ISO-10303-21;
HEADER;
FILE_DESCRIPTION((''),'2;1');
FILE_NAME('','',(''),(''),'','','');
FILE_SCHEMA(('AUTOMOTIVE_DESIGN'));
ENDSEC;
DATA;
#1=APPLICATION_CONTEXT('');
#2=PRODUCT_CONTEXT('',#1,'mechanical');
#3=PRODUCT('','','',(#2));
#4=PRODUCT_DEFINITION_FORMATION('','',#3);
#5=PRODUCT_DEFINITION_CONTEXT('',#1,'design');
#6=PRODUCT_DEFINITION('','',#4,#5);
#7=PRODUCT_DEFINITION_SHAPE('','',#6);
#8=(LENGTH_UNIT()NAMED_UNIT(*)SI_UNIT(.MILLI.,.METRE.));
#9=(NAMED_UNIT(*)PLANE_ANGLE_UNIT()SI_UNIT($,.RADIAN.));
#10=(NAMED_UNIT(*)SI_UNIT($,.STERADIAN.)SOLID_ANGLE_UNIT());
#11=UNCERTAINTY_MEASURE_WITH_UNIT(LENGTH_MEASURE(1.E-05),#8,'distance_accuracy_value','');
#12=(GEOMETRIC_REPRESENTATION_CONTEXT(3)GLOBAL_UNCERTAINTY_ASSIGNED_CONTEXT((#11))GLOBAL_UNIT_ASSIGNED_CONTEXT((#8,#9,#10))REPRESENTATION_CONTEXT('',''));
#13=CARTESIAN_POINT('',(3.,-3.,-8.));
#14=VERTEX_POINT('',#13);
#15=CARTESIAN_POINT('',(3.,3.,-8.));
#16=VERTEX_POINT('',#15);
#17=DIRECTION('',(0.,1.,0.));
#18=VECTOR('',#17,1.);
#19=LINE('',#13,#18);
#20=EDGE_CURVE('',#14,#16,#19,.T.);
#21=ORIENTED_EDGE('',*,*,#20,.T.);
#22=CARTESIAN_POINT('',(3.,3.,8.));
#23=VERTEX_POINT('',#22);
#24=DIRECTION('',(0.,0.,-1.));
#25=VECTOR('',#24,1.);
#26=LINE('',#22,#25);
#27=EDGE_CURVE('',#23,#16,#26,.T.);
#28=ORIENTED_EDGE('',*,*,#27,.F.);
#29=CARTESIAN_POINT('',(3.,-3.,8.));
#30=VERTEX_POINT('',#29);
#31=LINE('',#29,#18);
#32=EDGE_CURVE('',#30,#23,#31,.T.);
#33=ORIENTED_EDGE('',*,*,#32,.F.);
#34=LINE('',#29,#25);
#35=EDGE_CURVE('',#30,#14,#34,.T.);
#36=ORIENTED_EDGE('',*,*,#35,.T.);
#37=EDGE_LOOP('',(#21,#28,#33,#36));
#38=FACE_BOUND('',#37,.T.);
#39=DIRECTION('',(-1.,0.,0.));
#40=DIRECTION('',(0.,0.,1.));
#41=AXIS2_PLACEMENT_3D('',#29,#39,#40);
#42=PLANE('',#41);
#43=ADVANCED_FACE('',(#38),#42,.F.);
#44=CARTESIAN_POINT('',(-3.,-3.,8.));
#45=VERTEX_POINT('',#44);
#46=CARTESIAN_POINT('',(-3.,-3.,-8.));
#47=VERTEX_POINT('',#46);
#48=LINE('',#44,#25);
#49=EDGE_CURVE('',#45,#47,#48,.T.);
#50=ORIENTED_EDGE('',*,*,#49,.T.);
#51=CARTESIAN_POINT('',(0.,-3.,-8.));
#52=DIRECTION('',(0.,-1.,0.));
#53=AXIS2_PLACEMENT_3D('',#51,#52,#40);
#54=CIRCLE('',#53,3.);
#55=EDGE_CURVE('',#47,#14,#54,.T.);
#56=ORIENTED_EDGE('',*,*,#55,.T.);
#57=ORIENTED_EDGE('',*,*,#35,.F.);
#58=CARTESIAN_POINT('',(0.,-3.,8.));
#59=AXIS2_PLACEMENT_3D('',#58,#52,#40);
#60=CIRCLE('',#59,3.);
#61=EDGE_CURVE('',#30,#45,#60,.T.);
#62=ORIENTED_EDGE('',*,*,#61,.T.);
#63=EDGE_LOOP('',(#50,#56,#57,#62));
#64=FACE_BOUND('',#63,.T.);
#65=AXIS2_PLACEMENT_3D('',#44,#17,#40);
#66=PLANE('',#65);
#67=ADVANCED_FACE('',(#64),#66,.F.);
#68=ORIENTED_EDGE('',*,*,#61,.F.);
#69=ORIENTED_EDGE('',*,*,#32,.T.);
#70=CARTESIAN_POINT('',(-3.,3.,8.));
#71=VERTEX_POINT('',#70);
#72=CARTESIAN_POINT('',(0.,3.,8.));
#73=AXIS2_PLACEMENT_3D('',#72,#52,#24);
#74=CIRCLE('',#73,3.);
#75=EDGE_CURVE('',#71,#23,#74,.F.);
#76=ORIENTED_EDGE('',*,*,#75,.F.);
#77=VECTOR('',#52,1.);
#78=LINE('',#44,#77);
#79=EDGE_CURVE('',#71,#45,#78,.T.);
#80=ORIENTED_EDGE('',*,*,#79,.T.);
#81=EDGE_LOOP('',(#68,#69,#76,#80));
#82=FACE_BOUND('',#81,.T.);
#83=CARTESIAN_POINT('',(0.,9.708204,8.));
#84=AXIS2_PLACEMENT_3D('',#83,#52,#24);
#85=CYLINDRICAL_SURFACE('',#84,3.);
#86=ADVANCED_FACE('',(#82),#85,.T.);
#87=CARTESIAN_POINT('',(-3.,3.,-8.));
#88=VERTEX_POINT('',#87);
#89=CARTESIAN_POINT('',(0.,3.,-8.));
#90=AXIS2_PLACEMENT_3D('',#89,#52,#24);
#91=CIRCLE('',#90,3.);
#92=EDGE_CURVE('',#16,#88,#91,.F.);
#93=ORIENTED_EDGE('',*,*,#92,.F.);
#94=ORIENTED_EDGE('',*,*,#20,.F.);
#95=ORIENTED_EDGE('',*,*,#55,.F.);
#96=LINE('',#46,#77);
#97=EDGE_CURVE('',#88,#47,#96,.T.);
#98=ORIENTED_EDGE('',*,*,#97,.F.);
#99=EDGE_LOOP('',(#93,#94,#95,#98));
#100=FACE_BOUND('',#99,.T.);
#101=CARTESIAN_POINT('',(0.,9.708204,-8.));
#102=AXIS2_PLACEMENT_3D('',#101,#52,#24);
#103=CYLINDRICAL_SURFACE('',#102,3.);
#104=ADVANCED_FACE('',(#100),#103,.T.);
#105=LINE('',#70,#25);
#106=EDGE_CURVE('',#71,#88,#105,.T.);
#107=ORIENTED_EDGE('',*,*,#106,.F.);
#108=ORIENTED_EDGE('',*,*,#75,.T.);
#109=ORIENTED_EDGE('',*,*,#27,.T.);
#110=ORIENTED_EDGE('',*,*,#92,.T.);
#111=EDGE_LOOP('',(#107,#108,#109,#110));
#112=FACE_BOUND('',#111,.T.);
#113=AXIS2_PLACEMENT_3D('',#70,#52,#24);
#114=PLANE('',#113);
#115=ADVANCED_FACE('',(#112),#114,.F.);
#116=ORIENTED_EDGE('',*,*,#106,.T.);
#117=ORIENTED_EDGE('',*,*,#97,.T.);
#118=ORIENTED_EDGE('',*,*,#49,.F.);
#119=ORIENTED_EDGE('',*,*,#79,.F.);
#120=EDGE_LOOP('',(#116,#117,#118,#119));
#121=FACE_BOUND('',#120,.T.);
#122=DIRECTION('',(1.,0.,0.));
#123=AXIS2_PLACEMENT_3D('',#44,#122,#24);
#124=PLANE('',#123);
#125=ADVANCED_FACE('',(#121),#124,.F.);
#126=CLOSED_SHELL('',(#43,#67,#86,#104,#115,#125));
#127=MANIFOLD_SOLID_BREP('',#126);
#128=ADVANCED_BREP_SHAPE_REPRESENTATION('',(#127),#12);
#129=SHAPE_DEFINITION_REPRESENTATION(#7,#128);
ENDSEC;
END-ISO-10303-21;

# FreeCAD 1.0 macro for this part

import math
import FreeCAD as App
import Part
import Sketcher
Q = App.Units.Quantity


def add_polygon(sketch, points):
    """Adds a closed chain of lines whose ends are joined by coincident constraints."""
    first, n = sketch.GeometryCount, len(points)
    for a, b in zip(points, points[1:] + points[:1]):
        sketch.addGeometry(Part.LineSegment(App.Vector(*a, 0), App.Vector(*b, 0)), False)
    for i in range(n):
        sketch.addConstraint(Sketcher.Constraint("Coincident", first + i, 2, first + (i + 1) % n, 1))

doc = App.newDocument("Part")
body = doc.addObject("PartDesign::Body", "Body")

# Sketch on XY plane
sketch1 = body.newObject("Sketcher::SketchObject", "Sketch")
sketch1.AttachmentSupport = (doc.getObject("XY_Plane"), [""])
sketch1.MapMode = "FlatFace"
add_polygon(sketch1, [(-3, 3), (-3, -3), (3, -3), (3, 3)])  # lines 0-3
sketch1.addConstraint(Sketcher.Constraint("Vertical", 0))
sketch1.addConstraint(Sketcher.Constraint("Horizontal", 1))
sketch1.addConstraint(Sketcher.Constraint("Vertical", 2))
sketch1.addConstraint(Sketcher.Constraint("Horizontal", 3))
sketch1.addConstraint(Sketcher.Constraint("Symmetric", 0, 2, 2, 2, -1, 1))
sketch1.addConstraint(Sketcher.Constraint("Equal", 3, 0))
sketch1.addConstraint(Sketcher.Constraint("DistanceX", 1, 1, 1, 2, Q("6 mm")))
pad1 = body.newObject("PartDesign::Pad", "Pad")
pad1.Profile = sketch1
pad1.Length = 16
pad1.Midplane = True

# Sketch on XZ plane
sketch2 = body.newObject("Sketcher::SketchObject", "Sketch001")
sketch2.AttachmentSupport = (doc.getObject("XZ_Plane"), [""])
sketch2.MapMode = "FlatFace"
sketch2.AttachmentOffset = App.Placement(App.Vector(0, 0, 3), App.Rotation())
sketch2.addGeometry(Part.LineSegment(App.Vector(-3, 8, 0), App.Vector(3, 8, 0)), False)
sketch2.addGeometry(Part.ArcOfCircle(Part.Circle(App.Vector(0, 8, 0), App.Vector(0, 0, 1), 3), math.radians(0), math.radians(180)), False)
sketch2.addGeometry(Part.LineSegment(App.Vector(3, -8, 0), App.Vector(-3, -8, 0)), False)
sketch2.addGeometry(Part.ArcOfCircle(Part.Circle(App.Vector(0, -8, 0), App.Vector(0, 0, 1), 3), math.radians(180), math.radians(360)), False)
sketch2.addConstraint(Sketcher.Constraint("Coincident", 0, 1, 1, 2))
sketch2.addConstraint(Sketcher.Constraint("Coincident", 1, 1, 0, 2))
sketch2.addConstraint(Sketcher.Constraint("Coincident", 2, 1, 3, 2))
sketch2.addConstraint(Sketcher.Constraint("Coincident", 3, 1, 2, 2))
sketch2.addConstraint(Sketcher.Constraint("Horizontal", 0))
sketch2.addConstraint(Sketcher.Constraint("Horizontal", 2))
sketch2.addConstraint(Sketcher.Constraint("Equal", 1, 3))
sketch2.addConstraint(Sketcher.Constraint("Symmetric", 1, 3, 3, 3, -1, 1))
sketch2.addConstraint(Sketcher.Constraint("Symmetric", 1, 1, 2, 1, -1))
sketch2.addConstraint(Sketcher.Constraint("Horizontal", 1, 3, 0, 1))
sketch2.addConstraint(Sketcher.Constraint("Radius", 1, Q("3 mm")))
sketch2.addConstraint(Sketcher.Constraint("DistanceY", -1, 1, 1, 3, Q("8 mm")))
pad2 = body.newObject("PartDesign::Pad", "Pad001")
pad2.Profile = sketch2
pad2.Length = 6
pad2.Reversed = True

doc.recompute()
